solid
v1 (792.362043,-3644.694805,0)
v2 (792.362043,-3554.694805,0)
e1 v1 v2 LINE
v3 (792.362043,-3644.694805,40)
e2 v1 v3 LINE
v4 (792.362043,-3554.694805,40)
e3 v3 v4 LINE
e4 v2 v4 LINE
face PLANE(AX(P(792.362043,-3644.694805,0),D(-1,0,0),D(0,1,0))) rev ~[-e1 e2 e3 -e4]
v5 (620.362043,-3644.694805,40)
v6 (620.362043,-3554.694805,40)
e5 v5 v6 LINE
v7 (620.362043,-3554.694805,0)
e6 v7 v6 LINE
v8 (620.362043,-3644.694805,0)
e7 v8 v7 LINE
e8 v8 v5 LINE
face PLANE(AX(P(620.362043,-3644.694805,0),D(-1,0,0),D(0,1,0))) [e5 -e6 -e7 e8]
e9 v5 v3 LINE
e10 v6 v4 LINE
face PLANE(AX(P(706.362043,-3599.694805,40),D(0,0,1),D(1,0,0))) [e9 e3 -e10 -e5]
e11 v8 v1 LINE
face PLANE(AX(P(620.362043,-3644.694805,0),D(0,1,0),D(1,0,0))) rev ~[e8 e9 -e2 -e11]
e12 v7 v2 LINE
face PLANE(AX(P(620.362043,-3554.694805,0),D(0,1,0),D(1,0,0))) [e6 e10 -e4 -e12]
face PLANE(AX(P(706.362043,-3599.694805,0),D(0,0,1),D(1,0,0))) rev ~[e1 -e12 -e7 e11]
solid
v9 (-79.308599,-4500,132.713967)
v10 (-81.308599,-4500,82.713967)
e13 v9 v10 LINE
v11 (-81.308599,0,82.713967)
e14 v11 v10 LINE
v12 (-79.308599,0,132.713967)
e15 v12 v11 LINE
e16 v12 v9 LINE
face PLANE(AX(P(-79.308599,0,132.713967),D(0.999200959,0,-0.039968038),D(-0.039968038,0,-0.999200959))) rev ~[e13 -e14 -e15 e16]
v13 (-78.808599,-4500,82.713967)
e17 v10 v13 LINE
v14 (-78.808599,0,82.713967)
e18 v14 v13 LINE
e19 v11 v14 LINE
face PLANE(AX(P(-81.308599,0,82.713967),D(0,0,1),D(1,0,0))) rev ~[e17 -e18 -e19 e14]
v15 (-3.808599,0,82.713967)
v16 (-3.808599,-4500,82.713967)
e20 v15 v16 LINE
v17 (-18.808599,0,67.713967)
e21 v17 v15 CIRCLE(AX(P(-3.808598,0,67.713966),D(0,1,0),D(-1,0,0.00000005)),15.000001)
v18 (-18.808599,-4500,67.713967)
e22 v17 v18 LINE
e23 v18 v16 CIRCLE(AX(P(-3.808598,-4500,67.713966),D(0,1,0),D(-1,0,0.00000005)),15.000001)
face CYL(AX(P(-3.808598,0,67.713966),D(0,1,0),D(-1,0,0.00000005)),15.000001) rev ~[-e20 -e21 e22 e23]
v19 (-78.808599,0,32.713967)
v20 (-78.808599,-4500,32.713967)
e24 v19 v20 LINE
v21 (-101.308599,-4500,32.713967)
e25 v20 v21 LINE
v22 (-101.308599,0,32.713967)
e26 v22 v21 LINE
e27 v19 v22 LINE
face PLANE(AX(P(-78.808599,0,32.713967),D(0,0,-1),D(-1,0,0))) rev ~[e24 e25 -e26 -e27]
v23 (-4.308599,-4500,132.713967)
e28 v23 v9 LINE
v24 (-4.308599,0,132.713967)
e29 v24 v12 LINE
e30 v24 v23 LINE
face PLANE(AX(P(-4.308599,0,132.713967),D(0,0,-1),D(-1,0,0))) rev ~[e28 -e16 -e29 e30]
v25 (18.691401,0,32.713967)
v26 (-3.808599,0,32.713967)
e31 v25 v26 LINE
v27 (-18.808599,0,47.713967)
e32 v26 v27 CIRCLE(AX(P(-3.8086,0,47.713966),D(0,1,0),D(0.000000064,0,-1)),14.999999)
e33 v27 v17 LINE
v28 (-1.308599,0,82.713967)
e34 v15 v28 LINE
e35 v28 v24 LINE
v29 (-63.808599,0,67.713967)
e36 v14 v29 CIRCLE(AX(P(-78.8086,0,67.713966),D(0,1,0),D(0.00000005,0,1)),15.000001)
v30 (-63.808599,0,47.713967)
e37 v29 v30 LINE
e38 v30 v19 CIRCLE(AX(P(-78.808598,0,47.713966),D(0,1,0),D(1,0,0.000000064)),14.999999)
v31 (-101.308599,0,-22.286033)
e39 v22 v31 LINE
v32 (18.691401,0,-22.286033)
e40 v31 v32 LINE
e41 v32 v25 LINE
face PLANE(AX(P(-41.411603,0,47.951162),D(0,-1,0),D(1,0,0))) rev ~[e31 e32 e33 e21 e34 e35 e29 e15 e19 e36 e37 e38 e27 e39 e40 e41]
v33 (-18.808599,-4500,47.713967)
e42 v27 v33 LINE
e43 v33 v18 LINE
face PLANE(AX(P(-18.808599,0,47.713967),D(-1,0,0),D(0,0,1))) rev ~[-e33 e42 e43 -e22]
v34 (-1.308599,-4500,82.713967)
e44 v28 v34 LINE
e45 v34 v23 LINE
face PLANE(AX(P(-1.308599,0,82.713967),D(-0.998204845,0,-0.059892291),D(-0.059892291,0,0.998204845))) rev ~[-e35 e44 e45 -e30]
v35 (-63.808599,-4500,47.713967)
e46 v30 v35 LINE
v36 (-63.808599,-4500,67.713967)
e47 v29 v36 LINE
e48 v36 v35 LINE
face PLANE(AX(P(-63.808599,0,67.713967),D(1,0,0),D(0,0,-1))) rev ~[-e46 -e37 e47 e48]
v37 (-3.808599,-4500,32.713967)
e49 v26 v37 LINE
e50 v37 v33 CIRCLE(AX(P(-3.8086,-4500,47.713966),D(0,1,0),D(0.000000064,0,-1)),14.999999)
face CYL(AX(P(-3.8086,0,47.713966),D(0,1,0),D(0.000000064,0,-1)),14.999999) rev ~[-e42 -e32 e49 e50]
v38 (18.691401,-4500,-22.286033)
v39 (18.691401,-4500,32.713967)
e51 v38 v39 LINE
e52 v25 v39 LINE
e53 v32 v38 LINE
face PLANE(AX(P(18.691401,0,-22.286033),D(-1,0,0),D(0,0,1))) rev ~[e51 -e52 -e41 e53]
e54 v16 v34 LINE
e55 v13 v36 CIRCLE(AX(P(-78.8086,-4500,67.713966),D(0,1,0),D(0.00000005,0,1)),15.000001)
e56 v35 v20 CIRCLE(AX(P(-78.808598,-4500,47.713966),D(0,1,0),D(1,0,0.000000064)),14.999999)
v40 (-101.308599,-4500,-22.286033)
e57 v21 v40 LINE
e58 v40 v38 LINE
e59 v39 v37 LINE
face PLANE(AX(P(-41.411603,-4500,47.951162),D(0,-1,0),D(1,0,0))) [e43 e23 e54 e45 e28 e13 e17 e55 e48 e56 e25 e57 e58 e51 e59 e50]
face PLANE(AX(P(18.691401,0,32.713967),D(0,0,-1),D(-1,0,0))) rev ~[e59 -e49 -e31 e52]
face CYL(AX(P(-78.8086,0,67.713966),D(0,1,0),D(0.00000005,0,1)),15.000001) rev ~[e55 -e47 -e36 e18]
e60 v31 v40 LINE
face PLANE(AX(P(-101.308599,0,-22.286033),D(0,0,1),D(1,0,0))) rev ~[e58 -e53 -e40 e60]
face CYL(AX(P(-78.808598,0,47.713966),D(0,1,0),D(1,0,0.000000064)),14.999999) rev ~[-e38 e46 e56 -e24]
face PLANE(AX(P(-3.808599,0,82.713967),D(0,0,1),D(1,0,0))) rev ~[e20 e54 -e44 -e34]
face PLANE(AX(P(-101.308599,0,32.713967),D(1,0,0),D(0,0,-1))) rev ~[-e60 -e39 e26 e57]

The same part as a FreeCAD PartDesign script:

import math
import FreeCAD as App
import Part
import Sketcher
from FreeCAD import Vector
Q = App.Units.Quantity


def add_polygon(sketch, points):
    """Adds a closed chain of lines whose ends are joined by coincident constraints."""
    first, n = sketch.GeometryCount, len(points)
    for a, b in zip(points, points[1:] + points[:1]):
        sketch.addGeometry(Part.LineSegment(App.Vector(*a, 0), App.Vector(*b, 0)), False)
    for i in range(n):
        sketch.addConstraint(Sketcher.Constraint("Coincident", first + i, 2, first + (i + 1) % n, 1))

doc = App.newDocument("Part")
body = doc.addObject("PartDesign::Body", "Body")

sketch1 = doc.addObject("Sketcher::SketchObject", "Sketch")
body.addObject(sketch1)
sketch1.AttachmentSupport = (doc.XZ_Plane, [""])
sketch1.MapMode = "FlatFace"
sketch1.addGeometry([
    Part.LineSegment(Vector(-4.3, 132.7, 0), Vector(-79.3, 132.7, 0)),
    Part.LineSegment(Vector(-79.3, 132.7, 0), Vector(-81.3, 82.7, 0)),
    Part.LineSegment(Vector(-81.3, 82.7, 0), Vector(-78.8, 82.7, 0)),
    Part.ArcOfCircle(Part.Circle(Vector(-78.8, 67.7, 0), Vector(0, 0, 1), 15), math.radians(0), math.radians(90)),
    Part.LineSegment(Vector(-63.8, 67.7, 0), Vector(-63.8, 47.7, 0)),
    Part.ArcOfCircle(Part.Circle(Vector(-78.8, 47.7, 0), Vector(0, 0, 1), 15), math.radians(-90), math.radians(0)),
    Part.LineSegment(Vector(-78.8, 32.7, 0), Vector(-101.3, 32.7, 0)),
    Part.LineSegment(Vector(-101.3, 32.7, 0), Vector(-101.3, -22.3, 0)),
    Part.LineSegment(Vector(-101.3, -22.3, 0), Vector(18.7, -22.3, 0)),
    Part.LineSegment(Vector(18.7, -22.3, 0), Vector(18.7, 32.7, 0)),
    Part.LineSegment(Vector(18.7, 32.7, 0), Vector(-3.8, 32.7, 0)),
    Part.ArcOfCircle(Part.Circle(Vector(-3.8, 47.7, 0), Vector(0, 0, 1), 15), math.radians(180), math.radians(270)),
    Part.LineSegment(Vector(-18.8, 47.7, 0), Vector(-18.8, 67.7, 0)),
    Part.ArcOfCircle(Part.Circle(Vector(-3.8, 67.7, 0), Vector(0, 0, 1), 15), math.radians(90), math.radians(180)),
    Part.LineSegment(Vector(-3.8, 82.7, 0), Vector(-1.3, 82.7, 0)),
    Part.LineSegment(Vector(-1.3, 82.7, 0), Vector(-4.3, 132.7, 0)),
], False)
sketch1.addConstraint([
    Sketcher.Constraint("Coincident", 0, 2, 1, 1),
    Sketcher.Constraint("Coincident", 1, 2, 2, 1),
    Sketcher.Constraint("Tangent", 2, 2, 3, 2),
    Sketcher.Constraint("Tangent", 3, 1, 4, 1),
    Sketcher.Constraint("Tangent", 4, 2, 5, 2),
    Sketcher.Constraint("Tangent", 5, 1, 6, 1),
    Sketcher.Constraint("Coincident", 6, 2, 7, 1),
    Sketcher.Constraint("Coincident", 7, 2, 8, 1),
    Sketcher.Constraint("Coincident", 8, 2, 9, 1),
    Sketcher.Constraint("Coincident", 9, 2, 10, 1),
    Sketcher.Constraint("Tangent", 10, 2, 11, 2),
    Sketcher.Constraint("Tangent", 11, 1, 12, 1),
    Sketcher.Constraint("Tangent", 12, 2, 13, 2),
    Sketcher.Constraint("Tangent", 13, 1, 14, 1),
    Sketcher.Constraint("Coincident", 14, 2, 15, 1),
    Sketcher.Constraint("Coincident", 15, 2, 0, 1),
    Sketcher.Constraint("Horizontal", 0),
    Sketcher.Constraint("Horizontal", 2),
    Sketcher.Constraint("Vertical", 4),
    Sketcher.Constraint("Horizontal", 6),
    Sketcher.Constraint("Vertical", 7),
    Sketcher.Constraint("Horizontal", 8),
    Sketcher.Constraint("Vertical", 9),
    Sketcher.Constraint("Horizontal", 10),
    Sketcher.Constraint("Vertical", 12),
    Sketcher.Constraint("Horizontal", 14),
    Sketcher.Constraint("Equal", 3, 5),
    Sketcher.Constraint("Equal", 5, 11),
    Sketcher.Constraint("Equal", 11, 13),
    Sketcher.Constraint("Horizontal", 5, 3, 11, 3),
    Sketcher.Constraint("Horizontal", 3, 3, 13, 3),
    Sketcher.Constraint("Equal", 6, 10),
    Sketcher.Constraint("Equal", 2, 14),
    Sketcher.Constraint("Radius", 3, Q("15.000001 mm")),
    Sketcher.Constraint("DistanceX", 0, 2, 0, 1, Q("75 mm")),
    Sketcher.Constraint("DistanceX", 8, 1, 8, 2, Q("120 mm")),
    Sketcher.Constraint("DistanceY", 4, 2, 4, 1, Q("20 mm")),
    Sketcher.Constraint("DistanceY", 7, 2, 7, 1, Q("55 mm")),
    Sketcher.Constraint("DistanceX", 2, 1, 2, 2, Q("2.5 mm")),
    Sketcher.Constraint("DistanceX", 6, 2, 6, 1, Q("22.5 mm")),
    Sketcher.Constraint("DistanceY", 3, 3, 0, 2, Q("65.000001 mm")),
    Sketcher.Constraint("DistanceX", 1, 2, 0, 2, Q("2 mm")),
    Sketcher.Constraint("DistanceX", 3, 3, -1, 1, Q("78.8086 mm")),
    Sketcher.Constraint("DistanceY", -1, 1, 3, 3, Q("67.713966 mm")),
])
pad1 = doc.addObject("PartDesign::Pad", "Pad")
body.addObject(pad1)
pad1.Profile = sketch1
pad1.Length = 4500
body2 = doc.addObject("PartDesign::Body", "Body001")

sketch2 = doc.addObject("Sketcher::SketchObject", "Sketch001")
body2.addObject(sketch2)
sketch2.AttachmentSupport = (doc.getObject("XY_Plane001"), [""])
sketch2.MapMode = "FlatFace"
add_polygon(sketch2, [(620, -3555), (620, -3645), (792, -3645), (792, -3555)])
sketch2.addConstraint([
    Sketcher.Constraint("Vertical", 0),
    Sketcher.Constraint("Horizontal", 1),
    Sketcher.Constraint("Vertical", 2),
    Sketcher.Constraint("Horizontal", 3),
    Sketcher.Constraint("DistanceX", 1, 1, 1, 2, Q("172 mm")),
    Sketcher.Constraint("DistanceY", 0, 2, 0, 1, Q("90 mm")),
    Sketcher.Constraint("DistanceX", -1, 1, 0, 2, Q("620.362043 mm")),
    Sketcher.Constraint("DistanceY", 0, 2, -1, 1, Q("3644.694805 mm")),
])
pad2 = doc.addObject("PartDesign::Pad", "Pad001")
body2.addObject(pad2)
pad2.Profile = sketch2
pad2.Length = 40

doc.recompute()
